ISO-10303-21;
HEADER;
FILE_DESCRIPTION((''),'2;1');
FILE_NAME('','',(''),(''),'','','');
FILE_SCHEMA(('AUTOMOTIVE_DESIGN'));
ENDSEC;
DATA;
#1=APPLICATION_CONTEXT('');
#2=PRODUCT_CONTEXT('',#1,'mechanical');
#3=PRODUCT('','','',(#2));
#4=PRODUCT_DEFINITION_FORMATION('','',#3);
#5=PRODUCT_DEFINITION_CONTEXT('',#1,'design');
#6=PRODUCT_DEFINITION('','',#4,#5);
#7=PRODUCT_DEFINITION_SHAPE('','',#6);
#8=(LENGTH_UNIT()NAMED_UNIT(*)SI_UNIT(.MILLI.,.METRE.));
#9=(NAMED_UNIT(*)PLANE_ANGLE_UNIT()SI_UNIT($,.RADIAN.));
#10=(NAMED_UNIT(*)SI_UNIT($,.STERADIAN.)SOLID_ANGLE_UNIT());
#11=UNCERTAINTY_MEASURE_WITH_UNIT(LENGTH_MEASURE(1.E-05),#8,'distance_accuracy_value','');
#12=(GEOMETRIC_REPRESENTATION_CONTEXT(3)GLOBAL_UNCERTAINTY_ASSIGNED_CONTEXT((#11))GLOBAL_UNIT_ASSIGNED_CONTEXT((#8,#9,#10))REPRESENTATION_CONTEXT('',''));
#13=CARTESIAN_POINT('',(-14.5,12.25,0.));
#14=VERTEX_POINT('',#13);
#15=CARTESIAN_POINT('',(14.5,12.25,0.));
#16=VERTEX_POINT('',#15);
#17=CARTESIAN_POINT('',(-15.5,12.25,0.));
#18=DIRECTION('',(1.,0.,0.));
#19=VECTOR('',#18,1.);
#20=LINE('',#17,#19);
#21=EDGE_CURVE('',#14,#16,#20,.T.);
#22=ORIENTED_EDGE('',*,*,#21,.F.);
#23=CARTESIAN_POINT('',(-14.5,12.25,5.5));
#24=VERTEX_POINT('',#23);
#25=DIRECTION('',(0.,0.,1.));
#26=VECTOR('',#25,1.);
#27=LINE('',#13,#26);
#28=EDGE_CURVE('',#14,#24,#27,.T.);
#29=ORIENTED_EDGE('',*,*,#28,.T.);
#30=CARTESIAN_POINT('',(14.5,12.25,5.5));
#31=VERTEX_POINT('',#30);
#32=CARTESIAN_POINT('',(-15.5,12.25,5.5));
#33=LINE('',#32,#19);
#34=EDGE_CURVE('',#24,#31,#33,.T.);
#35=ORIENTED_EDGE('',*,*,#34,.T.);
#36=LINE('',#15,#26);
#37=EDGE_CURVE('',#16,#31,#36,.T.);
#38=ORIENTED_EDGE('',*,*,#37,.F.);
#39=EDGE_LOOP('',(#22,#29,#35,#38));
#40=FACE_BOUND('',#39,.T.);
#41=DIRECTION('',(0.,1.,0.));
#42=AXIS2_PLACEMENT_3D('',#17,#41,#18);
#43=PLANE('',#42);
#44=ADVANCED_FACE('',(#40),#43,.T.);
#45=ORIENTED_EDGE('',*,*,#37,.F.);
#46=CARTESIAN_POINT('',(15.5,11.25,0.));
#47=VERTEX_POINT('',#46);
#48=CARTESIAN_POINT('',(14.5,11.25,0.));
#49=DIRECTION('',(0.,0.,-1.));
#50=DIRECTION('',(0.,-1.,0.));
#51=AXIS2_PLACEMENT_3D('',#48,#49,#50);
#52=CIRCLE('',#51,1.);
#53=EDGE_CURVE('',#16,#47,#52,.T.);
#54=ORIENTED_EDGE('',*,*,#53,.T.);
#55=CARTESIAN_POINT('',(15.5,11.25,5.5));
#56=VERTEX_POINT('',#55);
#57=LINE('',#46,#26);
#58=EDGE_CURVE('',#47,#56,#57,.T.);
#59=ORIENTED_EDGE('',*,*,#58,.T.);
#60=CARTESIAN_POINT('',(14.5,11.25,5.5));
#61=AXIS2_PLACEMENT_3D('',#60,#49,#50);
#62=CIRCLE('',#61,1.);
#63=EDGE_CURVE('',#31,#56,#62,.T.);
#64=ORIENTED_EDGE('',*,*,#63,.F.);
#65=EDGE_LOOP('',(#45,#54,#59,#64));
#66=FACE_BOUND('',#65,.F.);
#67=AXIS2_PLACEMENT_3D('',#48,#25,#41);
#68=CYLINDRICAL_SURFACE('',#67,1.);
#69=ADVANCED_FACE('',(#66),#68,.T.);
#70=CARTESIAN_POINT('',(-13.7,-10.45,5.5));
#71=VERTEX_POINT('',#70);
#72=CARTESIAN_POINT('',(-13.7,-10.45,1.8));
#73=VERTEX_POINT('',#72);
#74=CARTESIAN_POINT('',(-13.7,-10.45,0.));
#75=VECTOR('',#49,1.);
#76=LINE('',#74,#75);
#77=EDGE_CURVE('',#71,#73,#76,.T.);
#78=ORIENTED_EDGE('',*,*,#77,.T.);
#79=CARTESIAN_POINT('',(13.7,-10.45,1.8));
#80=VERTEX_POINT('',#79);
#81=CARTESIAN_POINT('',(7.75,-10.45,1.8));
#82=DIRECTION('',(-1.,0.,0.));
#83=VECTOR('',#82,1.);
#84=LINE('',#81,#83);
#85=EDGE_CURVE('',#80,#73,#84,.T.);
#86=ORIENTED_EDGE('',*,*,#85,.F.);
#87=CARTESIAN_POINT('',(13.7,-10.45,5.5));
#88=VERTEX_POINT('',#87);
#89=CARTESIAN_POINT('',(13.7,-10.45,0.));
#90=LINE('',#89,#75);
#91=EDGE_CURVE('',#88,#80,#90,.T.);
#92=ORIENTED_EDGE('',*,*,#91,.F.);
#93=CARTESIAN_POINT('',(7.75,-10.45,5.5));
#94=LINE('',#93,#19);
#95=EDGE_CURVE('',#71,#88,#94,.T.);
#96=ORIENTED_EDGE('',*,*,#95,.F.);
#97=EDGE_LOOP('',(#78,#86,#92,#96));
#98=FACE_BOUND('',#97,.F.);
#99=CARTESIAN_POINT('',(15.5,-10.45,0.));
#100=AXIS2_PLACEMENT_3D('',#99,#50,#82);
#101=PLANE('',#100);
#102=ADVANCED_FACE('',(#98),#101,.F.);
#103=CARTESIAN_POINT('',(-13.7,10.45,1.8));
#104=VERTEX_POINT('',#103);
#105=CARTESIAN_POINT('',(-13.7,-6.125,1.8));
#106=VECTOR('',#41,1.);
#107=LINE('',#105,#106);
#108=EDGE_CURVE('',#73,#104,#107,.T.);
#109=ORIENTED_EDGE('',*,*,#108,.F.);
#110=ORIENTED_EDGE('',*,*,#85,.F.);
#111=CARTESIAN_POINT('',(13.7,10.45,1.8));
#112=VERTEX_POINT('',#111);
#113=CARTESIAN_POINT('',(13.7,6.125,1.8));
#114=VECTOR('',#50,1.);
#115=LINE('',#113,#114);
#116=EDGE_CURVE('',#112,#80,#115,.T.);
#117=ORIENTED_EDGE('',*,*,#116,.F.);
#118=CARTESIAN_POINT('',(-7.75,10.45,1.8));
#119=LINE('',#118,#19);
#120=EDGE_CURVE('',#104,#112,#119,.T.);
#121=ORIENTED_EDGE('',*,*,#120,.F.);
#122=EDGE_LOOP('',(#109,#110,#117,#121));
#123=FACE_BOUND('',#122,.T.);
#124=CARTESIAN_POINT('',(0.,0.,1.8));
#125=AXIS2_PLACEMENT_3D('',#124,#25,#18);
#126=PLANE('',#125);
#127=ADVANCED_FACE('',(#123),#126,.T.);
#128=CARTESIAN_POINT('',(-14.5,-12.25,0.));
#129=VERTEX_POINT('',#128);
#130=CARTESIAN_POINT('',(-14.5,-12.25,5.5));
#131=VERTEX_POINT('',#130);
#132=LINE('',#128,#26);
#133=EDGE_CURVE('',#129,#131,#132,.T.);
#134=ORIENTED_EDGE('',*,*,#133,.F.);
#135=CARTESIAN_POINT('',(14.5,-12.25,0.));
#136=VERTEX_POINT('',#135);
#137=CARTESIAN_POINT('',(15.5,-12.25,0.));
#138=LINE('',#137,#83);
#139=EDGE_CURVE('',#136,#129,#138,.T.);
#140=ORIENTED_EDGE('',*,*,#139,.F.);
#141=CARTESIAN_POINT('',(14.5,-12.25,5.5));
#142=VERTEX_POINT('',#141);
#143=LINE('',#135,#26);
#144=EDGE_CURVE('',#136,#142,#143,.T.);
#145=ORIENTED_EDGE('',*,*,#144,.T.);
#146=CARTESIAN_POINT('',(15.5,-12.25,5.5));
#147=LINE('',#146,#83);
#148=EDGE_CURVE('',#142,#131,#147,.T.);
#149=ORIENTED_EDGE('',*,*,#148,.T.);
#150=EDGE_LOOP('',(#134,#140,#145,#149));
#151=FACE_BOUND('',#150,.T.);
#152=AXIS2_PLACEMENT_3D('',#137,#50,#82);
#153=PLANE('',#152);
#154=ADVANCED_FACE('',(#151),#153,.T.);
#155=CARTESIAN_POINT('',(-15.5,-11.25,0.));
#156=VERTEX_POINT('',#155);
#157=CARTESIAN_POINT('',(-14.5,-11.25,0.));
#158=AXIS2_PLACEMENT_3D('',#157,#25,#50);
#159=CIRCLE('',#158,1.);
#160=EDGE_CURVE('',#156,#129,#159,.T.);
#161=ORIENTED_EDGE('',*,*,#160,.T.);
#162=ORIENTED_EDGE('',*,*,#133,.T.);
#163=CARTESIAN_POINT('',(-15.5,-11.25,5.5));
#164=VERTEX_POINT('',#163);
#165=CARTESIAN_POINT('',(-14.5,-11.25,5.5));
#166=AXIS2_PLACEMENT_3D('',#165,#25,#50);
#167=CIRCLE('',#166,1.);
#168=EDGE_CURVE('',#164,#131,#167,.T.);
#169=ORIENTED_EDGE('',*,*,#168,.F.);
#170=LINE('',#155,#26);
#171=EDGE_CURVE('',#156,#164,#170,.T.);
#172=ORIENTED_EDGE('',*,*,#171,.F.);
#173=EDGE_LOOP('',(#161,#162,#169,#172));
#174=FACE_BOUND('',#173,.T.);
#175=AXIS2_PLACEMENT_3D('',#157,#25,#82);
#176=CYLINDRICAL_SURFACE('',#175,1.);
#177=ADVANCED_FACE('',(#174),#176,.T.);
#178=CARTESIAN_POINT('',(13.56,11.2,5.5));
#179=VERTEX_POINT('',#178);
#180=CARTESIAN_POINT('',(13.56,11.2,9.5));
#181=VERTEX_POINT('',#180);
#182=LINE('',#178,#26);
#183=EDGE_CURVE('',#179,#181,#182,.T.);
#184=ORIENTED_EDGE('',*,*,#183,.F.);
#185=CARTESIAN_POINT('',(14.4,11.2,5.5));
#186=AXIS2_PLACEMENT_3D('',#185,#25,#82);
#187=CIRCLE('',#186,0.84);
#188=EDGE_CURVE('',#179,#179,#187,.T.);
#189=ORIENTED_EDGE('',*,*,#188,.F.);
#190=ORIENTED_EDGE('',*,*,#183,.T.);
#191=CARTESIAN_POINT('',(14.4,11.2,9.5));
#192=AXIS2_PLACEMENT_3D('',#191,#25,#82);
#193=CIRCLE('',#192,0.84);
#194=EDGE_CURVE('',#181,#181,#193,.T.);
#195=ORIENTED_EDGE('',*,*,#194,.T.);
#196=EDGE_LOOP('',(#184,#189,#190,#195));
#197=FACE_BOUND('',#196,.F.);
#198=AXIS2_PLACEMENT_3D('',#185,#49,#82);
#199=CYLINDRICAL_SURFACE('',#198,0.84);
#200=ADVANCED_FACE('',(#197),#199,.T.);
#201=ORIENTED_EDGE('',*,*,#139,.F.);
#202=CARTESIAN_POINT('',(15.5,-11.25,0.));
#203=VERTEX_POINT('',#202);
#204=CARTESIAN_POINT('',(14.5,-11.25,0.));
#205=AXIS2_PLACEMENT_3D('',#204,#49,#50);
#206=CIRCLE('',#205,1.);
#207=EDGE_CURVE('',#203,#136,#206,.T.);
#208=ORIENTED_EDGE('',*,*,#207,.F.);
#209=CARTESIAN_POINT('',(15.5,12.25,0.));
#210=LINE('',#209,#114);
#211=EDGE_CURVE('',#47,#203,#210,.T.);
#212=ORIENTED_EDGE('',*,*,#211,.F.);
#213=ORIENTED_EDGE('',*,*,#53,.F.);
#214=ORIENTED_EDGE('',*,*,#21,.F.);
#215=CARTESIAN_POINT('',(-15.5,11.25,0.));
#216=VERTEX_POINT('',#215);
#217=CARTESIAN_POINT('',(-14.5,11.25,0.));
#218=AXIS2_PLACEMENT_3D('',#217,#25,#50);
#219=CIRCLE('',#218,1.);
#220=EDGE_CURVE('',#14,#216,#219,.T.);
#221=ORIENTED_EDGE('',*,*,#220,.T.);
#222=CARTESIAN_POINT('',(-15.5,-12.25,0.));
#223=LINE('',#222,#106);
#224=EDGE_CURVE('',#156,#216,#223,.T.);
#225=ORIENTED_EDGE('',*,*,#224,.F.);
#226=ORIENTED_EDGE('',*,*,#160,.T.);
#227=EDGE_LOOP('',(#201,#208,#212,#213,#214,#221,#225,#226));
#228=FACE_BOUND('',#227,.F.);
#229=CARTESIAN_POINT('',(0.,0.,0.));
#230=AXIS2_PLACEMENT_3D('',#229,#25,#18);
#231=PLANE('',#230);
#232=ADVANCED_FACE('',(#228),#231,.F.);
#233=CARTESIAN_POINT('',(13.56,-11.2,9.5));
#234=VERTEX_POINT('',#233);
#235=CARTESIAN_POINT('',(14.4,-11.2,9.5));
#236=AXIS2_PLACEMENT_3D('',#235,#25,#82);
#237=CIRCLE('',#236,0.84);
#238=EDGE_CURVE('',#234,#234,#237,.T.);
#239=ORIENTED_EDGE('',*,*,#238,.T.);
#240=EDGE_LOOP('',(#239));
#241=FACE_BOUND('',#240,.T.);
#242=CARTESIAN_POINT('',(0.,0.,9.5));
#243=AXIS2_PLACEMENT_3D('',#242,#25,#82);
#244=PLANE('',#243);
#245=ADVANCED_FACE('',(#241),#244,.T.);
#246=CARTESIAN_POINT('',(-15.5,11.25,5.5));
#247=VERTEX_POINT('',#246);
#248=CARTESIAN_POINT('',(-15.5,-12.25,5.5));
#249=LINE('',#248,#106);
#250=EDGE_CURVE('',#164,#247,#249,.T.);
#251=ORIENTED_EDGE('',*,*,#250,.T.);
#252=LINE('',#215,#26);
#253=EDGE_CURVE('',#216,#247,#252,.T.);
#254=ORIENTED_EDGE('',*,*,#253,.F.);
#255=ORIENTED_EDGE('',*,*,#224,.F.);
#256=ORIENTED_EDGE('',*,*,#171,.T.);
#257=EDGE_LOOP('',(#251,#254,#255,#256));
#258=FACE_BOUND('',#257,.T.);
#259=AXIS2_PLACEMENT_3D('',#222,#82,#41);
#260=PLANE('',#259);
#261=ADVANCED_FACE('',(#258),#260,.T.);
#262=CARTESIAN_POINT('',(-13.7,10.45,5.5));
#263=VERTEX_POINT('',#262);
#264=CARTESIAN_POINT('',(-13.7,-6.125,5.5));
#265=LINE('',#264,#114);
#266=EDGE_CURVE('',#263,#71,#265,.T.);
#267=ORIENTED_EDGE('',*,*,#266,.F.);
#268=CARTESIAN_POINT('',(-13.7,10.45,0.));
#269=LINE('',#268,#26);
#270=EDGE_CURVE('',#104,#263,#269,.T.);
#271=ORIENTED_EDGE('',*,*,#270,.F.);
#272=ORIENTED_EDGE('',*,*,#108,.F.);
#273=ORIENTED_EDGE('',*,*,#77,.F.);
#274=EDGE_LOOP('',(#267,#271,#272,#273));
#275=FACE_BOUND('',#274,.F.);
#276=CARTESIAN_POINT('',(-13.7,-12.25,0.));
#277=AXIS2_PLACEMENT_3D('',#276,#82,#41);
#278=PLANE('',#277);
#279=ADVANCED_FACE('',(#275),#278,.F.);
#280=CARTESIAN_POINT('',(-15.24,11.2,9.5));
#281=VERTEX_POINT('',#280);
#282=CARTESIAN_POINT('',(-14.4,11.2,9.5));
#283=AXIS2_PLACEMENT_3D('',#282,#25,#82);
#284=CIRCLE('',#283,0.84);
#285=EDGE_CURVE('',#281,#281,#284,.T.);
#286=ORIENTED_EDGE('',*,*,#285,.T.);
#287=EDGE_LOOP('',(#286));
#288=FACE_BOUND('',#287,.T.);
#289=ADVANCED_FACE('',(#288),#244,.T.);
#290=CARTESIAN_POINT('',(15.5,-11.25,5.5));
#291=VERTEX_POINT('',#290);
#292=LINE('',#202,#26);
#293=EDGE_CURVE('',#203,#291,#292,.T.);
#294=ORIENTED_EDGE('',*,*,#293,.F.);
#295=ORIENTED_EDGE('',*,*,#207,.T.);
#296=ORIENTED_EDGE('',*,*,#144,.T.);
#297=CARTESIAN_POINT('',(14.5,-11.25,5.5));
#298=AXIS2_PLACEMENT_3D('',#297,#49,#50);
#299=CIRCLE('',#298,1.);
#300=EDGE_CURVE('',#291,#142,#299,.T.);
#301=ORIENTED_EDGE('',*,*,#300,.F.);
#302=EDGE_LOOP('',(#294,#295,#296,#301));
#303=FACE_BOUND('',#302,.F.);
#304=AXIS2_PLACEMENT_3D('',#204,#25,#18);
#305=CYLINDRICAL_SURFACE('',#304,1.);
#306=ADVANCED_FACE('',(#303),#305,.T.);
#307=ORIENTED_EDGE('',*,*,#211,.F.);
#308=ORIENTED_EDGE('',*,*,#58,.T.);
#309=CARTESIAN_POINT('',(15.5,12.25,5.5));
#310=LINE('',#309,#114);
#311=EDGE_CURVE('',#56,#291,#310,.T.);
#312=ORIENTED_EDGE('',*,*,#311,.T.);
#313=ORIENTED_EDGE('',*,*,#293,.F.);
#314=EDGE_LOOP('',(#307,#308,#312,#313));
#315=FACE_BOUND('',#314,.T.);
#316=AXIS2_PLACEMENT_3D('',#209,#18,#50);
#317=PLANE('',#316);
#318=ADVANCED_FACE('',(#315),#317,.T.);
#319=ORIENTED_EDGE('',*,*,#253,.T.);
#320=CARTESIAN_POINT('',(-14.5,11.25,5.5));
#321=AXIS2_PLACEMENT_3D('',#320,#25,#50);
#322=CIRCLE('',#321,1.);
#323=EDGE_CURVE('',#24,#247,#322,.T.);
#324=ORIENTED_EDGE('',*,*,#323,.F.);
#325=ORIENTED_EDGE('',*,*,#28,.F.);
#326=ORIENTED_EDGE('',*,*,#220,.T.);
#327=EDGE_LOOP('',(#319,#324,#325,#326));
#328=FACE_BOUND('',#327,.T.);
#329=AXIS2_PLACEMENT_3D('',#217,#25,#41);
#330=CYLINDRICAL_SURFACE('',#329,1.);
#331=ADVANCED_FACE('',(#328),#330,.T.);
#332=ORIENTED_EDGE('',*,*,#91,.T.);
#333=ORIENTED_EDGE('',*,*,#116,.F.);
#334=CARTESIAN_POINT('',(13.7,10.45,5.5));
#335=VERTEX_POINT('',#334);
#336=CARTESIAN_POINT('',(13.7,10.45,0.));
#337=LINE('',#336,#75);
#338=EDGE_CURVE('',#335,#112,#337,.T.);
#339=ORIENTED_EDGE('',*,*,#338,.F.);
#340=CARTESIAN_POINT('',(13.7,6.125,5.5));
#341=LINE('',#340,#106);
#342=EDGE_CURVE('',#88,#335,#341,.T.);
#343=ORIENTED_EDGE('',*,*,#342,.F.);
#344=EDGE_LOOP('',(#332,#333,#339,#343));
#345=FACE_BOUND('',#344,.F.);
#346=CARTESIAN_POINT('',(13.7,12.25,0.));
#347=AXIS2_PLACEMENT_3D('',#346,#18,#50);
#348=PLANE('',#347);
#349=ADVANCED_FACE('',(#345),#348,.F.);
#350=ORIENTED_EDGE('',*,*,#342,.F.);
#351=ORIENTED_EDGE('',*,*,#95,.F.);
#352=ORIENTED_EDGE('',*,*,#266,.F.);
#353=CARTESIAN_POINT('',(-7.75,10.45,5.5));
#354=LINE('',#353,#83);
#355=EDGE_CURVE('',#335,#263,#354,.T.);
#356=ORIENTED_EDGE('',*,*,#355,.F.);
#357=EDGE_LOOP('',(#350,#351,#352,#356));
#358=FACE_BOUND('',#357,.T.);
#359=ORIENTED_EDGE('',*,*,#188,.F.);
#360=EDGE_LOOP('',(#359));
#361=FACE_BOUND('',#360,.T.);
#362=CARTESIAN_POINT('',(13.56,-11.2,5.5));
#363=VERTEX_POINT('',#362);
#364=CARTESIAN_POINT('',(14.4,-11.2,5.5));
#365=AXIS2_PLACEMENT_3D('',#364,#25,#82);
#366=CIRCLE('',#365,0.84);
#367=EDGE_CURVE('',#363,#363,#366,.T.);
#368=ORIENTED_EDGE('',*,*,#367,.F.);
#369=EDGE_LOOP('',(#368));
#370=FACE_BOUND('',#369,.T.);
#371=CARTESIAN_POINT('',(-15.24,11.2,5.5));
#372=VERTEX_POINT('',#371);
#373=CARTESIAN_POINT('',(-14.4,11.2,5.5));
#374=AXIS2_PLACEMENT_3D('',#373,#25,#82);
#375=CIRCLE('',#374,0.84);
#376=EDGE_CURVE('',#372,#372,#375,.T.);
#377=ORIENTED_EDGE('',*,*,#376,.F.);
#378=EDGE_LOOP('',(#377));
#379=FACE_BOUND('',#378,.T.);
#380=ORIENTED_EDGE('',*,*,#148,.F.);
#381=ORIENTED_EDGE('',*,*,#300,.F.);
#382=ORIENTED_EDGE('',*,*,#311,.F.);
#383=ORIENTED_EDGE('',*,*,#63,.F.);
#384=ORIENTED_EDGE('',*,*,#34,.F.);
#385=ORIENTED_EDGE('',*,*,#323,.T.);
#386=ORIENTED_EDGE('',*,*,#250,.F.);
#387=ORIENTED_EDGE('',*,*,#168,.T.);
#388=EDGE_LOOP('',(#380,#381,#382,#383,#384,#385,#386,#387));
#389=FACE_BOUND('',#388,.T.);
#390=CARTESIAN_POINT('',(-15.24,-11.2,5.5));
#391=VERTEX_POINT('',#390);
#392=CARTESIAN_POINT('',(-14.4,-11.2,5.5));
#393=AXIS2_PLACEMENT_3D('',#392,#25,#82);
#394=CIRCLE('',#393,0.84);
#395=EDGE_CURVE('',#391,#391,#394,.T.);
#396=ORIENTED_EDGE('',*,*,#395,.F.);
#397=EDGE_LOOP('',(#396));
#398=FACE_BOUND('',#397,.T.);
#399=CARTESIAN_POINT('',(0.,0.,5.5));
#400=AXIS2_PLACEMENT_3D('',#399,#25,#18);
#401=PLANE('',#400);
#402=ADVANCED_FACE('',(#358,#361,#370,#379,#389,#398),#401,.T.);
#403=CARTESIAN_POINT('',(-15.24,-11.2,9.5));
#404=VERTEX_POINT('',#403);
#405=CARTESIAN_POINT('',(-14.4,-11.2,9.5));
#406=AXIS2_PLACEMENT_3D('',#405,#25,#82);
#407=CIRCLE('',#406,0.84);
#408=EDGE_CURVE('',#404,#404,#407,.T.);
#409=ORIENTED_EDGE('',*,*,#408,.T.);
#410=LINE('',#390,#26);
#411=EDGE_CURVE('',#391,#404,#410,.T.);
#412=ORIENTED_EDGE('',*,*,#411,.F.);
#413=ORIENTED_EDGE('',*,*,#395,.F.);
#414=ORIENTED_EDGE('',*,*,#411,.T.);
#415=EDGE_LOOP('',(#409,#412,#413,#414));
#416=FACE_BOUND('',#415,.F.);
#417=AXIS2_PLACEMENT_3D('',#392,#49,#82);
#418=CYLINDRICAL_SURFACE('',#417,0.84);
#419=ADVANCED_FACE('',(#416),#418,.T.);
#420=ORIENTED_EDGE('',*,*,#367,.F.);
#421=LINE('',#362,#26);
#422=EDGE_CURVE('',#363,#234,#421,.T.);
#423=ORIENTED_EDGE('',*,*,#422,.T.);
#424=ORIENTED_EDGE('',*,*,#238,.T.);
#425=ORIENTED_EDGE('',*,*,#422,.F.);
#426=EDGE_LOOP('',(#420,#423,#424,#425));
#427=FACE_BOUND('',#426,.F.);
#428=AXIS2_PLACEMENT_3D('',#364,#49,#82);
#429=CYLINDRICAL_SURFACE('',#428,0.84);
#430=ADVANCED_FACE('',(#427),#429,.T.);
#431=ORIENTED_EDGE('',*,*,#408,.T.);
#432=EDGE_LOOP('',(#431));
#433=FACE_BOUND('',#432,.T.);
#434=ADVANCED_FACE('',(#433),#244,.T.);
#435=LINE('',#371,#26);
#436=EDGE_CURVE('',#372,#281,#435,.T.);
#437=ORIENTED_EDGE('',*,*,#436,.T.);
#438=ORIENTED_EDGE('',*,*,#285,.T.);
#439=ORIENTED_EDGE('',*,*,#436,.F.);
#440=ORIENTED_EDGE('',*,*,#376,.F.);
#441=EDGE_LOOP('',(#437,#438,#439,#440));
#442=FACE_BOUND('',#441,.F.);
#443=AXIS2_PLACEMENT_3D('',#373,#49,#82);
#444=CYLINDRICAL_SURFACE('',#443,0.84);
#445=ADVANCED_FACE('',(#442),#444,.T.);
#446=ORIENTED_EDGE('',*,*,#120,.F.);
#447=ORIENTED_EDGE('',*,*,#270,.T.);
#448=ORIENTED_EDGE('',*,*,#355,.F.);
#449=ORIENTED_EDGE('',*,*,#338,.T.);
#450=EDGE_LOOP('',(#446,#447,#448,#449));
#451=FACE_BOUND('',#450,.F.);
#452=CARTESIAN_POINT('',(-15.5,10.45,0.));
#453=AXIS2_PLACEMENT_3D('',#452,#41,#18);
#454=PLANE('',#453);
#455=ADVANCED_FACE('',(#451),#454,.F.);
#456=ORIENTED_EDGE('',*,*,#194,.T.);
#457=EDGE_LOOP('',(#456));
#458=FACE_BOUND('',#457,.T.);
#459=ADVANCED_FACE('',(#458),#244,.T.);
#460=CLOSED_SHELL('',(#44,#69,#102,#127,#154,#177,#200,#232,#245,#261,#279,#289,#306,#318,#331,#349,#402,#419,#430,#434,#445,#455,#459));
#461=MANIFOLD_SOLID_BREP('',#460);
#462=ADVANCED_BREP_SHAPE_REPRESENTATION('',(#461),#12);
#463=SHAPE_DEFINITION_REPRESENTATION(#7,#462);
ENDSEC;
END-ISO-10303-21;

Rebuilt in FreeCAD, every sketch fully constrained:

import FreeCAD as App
import Part
import Sketcher

V = App.Vector
Q = App.Units.Quantity


def edges_at(feature, points):
    """Names of the edges that pass closest to the given points."""
    edges = feature.Shape.Edges
    near = lambda p: min(range(len(edges)), key=lambda i: edges[i].distToShape(Part.Vertex(*p))[0])
    return sorted({f"Edge{near(p) + 1}" for p in points})


def faces_at(feature, points):
    """Names of the faces that lie closest to the given points."""
    faces = feature.Shape.Faces
    near = lambda p: min(range(len(faces)), key=lambda i: faces[i].distToShape(Part.Vertex(*p))[0])
    return sorted({f"Face{near(p) + 1}" for p in points})


def add_polygon(sketch, points):
    """Adds a closed chain of lines whose ends are joined by coincident constraints."""
    first, n = sketch.GeometryCount, len(points)
    for a, b in zip(points, points[1:] + points[:1]):
        sketch.addGeometry(Part.LineSegment(App.Vector(*a, 0), App.Vector(*b, 0)), False)
    for i in range(n):
        sketch.addConstraint(Sketcher.Constraint("Coincident", first + i, 2, first + (i + 1) % n, 1))

doc = App.newDocument("Part")
body = doc.addObject("PartDesign::Body", "Body")

# Sketch on XY plane
sketch1 = doc.addObject("Sketcher::SketchObject", "Sketch")
body.addObject(sketch1)
sketch1.AttachmentSupport = (doc.XY_Plane, [""])
sketch1.MapMode = "FlatFace"
add_polygon(sketch1, [(15.5, 12.25), (-15.5, 12.25), (-15.5, -12.25), (15.5, -12.25)])  # lines 0-3
sketch1.addConstraint(Sketcher.Constraint("Horizontal", 0))
sketch1.addConstraint(Sketcher.Constraint("Vertical", 1))
sketch1.addConstraint(Sketcher.Constraint("Horizontal", 2))
sketch1.addConstraint(Sketcher.Constraint("Vertical", 3))
sketch1.addConstraint(Sketcher.Constraint("Symmetric", 0, 2, 2, 2, -1, 1))
sketch1.addConstraint(Sketcher.Constraint("DistanceX", 0, 2, 0, 1, Q("31 mm")))
sketch1.addConstraint(Sketcher.Constraint("DistanceY", 1, 2, 1, 1, Q("24.5 mm")))
pad1 = doc.addObject("PartDesign::Pad", "Pad")
body.addObject(pad1)
pad1.Profile = sketch1
pad1.Length = 5.5
doc.recompute()

thickness = doc.addObject("PartDesign::Thickness", "Thickness")
body.addObject(thickness)
thickness.Base = (pad1, faces_at(pad1, [(-5.167, 4.083, 5.5)]))
thickness.Value = 1.8
thickness.Reversed = True
thickness.Join = "Intersection"

# Sketch on XY plane
sketch2 = doc.addObject("Sketcher::SketchObject", "Sketch001")
body.addObject(sketch2)
sketch2.AttachmentSupport = (doc.XY_Plane, [""])
sketch2.MapMode = "FlatFace"
sketch2.AttachmentOffset = App.Placement(V(0, 0, 5.5), App.Rotation())
sketch2.addGeometry(Part.Circle(V(-14.4, 11.2, 0), V(0, 0, 1), 0.84), False)
sketch2.addGeometry(Part.Circle(V(14.4, 11.2, 0), V(0, 0, 1), 0.84), False)
sketch2.addGeometry(Part.Circle(V(14.4, -11.2, 0), V(0, 0, 1), 0.84), False)
sketch2.addGeometry(Part.Circle(V(-14.4, -11.2, 0), V(0, 0, 1), 0.84), False)
sketch2.addConstraint(Sketcher.Constraint("Equal", 0, 1))
sketch2.addConstraint(Sketcher.Constraint("Equal", 1, 2))
sketch2.addConstraint(Sketcher.Constraint("Equal", 2, 3))
sketch2.addConstraint(Sketcher.Constraint("Symmetric", 0, 3, 2, 3, -1, 1))
sketch2.addConstraint(Sketcher.Constraint("Symmetric", 1, 3, 3, 3, -1, 1))
sketch2.addConstraint(Sketcher.Constraint("Symmetric", 0, 3, 1, 3, -2))
sketch2.addConstraint(Sketcher.Constraint("Diameter", 0, Q("1.68 mm")))
sketch2.addConstraint(Sketcher.Constraint("DistanceX", 0, 3, -1, 1, Q("14.4 mm")))
sketch2.addConstraint(Sketcher.Constraint("DistanceY", -1, 1, 0, 3, Q("11.2 mm")))
pad2 = doc.addObject("PartDesign::Pad", "Pad001")
body.addObject(pad2)
pad2.Profile = sketch2
pad2.Length = 4
doc.recompute()

fillet = doc.addObject("PartDesign::Fillet", "Fillet")
body.addObject(fillet)
fillet.Base = (pad2, edges_at(pad2, [(15.5, -12.25, 2.75)]))
fillet.Radius = 1
doc.recompute()

fillet2 = doc.addObject("PartDesign::Fillet", "Fillet001")
body.addObject(fillet2)
fillet2.Base = (fillet, edges_at(fillet, [(15.5, 12.25, 2.75)]))
fillet2.Radius = 1
doc.recompute()

fillet3 = doc.addObject("PartDesign::Fillet", "Fillet002")
body.addObject(fillet3)
fillet3.Base = (fillet2, edges_at(fillet2, [(-15.5, 12.25, 2.75)]))
fillet3.Radius = 1
doc.recompute()

fillet4 = doc.addObject("PartDesign::Fillet", "Fillet003")
body.addObject(fillet4)
fillet4.Base = (fillet3, edges_at(fillet3, [(-15.5, -12.25, 2.75)]))
fillet4.Radius = 1

doc.recompute()
